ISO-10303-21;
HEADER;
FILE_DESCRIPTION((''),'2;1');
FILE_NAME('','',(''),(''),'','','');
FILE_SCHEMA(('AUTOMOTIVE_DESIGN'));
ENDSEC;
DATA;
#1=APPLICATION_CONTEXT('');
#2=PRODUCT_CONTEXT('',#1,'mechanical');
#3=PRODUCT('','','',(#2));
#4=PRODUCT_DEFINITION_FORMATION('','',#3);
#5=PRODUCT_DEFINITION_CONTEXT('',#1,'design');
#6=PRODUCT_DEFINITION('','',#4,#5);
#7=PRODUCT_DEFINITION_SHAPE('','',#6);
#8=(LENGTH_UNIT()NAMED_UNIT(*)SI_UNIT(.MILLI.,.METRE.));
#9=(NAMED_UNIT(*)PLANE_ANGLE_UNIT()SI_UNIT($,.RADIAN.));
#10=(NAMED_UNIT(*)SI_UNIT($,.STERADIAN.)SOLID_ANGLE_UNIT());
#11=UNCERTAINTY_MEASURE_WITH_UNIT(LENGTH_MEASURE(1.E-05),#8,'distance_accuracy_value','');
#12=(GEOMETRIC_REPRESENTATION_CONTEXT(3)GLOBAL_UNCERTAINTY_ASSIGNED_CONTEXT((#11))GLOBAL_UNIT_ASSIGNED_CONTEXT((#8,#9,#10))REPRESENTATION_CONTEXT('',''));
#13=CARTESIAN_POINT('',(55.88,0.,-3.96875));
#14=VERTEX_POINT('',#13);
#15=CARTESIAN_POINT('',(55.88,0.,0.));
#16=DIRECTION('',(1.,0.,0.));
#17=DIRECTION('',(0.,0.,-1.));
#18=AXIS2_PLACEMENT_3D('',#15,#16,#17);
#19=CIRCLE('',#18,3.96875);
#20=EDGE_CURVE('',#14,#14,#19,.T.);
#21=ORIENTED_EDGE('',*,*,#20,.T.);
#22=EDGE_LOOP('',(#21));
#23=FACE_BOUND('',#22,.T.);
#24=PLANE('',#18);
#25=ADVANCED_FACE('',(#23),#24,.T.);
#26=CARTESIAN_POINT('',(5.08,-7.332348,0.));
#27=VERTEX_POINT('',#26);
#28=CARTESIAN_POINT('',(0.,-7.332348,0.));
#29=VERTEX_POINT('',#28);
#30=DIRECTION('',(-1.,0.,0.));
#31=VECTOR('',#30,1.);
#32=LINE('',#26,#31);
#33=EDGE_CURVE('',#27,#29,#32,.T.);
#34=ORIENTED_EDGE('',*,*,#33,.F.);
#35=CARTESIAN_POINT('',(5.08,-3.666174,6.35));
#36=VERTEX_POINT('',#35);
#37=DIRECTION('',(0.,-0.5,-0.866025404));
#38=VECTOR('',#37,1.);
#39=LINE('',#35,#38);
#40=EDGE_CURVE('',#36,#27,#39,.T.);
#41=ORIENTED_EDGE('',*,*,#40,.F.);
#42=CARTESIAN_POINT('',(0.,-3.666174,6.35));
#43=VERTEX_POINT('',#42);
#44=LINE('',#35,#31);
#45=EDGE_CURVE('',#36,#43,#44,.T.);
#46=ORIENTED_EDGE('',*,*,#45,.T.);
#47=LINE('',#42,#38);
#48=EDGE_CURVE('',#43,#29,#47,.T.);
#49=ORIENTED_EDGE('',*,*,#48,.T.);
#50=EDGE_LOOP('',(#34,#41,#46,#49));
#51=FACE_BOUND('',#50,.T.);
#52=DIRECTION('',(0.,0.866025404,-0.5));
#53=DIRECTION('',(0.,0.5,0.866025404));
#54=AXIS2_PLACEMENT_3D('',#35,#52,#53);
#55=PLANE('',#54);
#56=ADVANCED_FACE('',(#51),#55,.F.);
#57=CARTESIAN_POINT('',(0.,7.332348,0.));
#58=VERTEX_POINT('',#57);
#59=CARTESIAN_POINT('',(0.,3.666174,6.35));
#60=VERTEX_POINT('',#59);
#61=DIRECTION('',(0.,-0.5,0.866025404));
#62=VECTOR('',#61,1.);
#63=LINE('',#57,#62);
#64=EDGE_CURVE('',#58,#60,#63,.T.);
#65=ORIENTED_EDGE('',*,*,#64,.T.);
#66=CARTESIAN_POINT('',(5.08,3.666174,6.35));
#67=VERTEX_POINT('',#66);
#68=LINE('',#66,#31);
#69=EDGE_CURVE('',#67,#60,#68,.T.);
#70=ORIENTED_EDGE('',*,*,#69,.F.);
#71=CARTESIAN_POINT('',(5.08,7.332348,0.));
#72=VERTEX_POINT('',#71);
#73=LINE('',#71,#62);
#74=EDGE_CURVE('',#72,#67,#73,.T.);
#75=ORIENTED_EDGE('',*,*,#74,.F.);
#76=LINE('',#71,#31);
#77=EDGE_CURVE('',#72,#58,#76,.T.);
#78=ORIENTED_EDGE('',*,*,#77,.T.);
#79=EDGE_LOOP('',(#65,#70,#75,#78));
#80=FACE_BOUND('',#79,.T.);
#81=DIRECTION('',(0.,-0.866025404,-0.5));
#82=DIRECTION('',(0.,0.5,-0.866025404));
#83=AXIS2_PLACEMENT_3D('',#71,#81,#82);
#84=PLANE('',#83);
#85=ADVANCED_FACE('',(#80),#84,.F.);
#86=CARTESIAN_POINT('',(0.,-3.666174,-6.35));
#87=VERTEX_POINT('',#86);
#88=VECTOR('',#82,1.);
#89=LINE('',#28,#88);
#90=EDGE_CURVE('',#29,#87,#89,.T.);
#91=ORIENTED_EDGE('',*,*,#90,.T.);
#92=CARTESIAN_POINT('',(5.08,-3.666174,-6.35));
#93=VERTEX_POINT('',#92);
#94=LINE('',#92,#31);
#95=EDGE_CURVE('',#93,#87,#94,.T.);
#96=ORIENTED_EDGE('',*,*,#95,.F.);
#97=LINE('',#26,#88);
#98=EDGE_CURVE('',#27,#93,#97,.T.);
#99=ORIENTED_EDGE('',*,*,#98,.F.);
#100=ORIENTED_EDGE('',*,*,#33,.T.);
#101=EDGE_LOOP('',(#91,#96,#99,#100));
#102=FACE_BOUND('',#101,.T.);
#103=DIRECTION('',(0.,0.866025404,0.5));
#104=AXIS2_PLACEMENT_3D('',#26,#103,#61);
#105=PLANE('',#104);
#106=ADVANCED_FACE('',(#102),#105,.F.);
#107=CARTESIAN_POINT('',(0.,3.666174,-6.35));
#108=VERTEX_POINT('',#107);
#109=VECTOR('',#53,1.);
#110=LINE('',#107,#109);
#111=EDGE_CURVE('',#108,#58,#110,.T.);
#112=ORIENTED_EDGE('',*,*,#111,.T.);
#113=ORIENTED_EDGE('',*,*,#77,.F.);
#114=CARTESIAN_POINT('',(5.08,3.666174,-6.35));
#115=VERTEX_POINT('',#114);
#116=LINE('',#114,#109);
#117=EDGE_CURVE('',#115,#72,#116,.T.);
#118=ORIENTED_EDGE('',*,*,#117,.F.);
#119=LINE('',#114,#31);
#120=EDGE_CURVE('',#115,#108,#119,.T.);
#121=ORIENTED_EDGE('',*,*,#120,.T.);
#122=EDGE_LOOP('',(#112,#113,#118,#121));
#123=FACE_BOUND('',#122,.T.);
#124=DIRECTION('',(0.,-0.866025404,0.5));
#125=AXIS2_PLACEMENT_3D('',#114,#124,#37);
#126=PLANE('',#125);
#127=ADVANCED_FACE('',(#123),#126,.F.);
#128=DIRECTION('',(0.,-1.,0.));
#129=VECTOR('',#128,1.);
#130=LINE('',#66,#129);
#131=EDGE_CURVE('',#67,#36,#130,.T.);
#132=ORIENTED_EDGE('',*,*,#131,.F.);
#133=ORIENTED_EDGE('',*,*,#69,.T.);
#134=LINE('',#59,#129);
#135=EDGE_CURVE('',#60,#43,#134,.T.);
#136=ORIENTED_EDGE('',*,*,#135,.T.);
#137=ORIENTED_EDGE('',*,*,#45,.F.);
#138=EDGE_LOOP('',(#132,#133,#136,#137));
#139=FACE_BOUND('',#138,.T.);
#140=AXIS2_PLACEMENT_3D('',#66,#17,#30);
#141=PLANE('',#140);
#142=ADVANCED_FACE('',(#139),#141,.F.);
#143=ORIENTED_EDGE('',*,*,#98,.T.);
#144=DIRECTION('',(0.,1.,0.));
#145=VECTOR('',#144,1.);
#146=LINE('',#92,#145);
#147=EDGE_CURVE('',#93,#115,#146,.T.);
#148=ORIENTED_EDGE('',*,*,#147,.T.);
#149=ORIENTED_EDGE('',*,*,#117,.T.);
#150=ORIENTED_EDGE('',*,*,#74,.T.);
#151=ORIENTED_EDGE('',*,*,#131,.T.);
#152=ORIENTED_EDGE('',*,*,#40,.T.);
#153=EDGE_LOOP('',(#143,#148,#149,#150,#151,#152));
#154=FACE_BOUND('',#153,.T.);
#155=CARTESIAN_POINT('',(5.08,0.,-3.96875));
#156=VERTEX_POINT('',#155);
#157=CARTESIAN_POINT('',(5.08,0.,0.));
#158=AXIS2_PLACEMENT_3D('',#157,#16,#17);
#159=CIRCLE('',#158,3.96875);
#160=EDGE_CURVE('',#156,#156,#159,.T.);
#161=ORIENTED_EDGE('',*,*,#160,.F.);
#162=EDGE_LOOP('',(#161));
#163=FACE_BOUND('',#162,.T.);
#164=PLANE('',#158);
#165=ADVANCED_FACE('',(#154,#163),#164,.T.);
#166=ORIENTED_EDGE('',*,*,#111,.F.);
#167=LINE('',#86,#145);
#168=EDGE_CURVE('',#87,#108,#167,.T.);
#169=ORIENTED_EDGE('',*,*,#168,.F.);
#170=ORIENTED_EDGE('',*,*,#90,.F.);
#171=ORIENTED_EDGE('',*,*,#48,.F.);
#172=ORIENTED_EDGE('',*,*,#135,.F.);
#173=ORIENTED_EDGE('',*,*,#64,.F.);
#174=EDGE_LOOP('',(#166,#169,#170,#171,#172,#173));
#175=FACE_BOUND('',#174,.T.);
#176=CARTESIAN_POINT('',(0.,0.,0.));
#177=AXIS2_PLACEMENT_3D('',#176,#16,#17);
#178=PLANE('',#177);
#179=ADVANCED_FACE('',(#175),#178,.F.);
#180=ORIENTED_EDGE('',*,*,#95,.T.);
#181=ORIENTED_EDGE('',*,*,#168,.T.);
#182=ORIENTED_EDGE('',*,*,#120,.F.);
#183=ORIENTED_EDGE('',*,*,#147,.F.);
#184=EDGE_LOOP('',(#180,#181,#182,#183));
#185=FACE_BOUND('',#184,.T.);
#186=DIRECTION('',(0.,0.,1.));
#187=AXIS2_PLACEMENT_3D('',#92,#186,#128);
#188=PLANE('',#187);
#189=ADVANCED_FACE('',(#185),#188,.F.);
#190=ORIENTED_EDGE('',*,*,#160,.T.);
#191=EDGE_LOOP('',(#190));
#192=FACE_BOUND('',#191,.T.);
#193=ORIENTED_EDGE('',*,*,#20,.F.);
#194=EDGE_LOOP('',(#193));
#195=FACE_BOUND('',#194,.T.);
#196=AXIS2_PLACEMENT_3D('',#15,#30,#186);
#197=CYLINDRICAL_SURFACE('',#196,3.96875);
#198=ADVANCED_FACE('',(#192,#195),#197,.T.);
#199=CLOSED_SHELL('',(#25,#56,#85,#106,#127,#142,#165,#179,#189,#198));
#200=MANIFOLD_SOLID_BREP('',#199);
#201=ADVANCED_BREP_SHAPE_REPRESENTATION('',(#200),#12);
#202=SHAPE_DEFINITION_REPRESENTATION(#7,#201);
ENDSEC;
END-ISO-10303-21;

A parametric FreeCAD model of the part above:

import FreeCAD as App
import Part
import Sketcher
Q = App.Units.Quantity

doc = App.newDocument("Part")
params = doc.addObject("Spreadsheet::Sheet", "Params")
for row, (alias, value) in enumerate([
    ("pad1_length", "0.2 in"),
    ("sketch2_diameter", "0.3125 in"),
    ("pad2_length", "2 in"),
], start=1):
    params.set(f"A{row}", alias)
    params.set(f"B{row}", "=" + value)
    params.setAlias(f"B{row}", alias)

body = doc.addObject("PartDesign::Body", "Body")

# Sketch on YZ plane
sketch1 = body.newObject("Sketcher::SketchObject", "Sketch")
sketch1.AttachmentSupport = (doc.getObject("YZ_Plane"), [""])
sketch1.MapMode = "FlatFace"
sketch1.addGeometry(Part.LineSegment(App.Vector(4, -6, 0), App.Vector(7, 0, 0)), False)
sketch1.addGeometry(Part.LineSegment(App.Vector(7, 0, 0), App.Vector(4, 6, 0)), False)
sketch1.addGeometry(Part.LineSegment(App.Vector(4, 6, 0), App.Vector(-4, 6, 0)), False)
sketch1.addGeometry(Part.LineSegment(App.Vector(-4, 6, 0), App.Vector(-7, 0, 0)), False)
sketch1.addGeometry(Part.LineSegment(App.Vector(-7, 0, 0), App.Vector(-4, -6, 0)), False)
sketch1.addGeometry(Part.LineSegment(App.Vector(-4, -6, 0), App.Vector(4, -6, 0)), False)
sketch1.addConstraint(Sketcher.Constraint("Coincident", 0, 2, 1, 1))
sketch1.addConstraint(Sketcher.Constraint("Coincident", 1, 2, 2, 1))
sketch1.addConstraint(Sketcher.Constraint("Coincident", 2, 2, 3, 1))
sketch1.addConstraint(Sketcher.Constraint("Coincident", 3, 2, 4, 1))
sketch1.addConstraint(Sketcher.Constraint("Coincident", 4, 2, 5, 1))
sketch1.addConstraint(Sketcher.Constraint("Coincident", 5, 2, 0, 1))
sketch1.addConstraint(Sketcher.Constraint("Horizontal", 2))
sketch1.addConstraint(Sketcher.Constraint("Horizontal", 5))
sketch1.addConstraint(Sketcher.Constraint("Symmetric", 0, 2, 3, 2, -1, 1))
sketch1.addConstraint(Sketcher.Constraint("Symmetric", 1, 2, 4, 2, -1, 1))
sketch1.addConstraint(Sketcher.Constraint("PointOnObject", 0, 2, -1))
sketch1.addConstraint(Sketcher.Constraint("Parallel", 0, 3))
sketch1.addConstraint(Sketcher.Constraint("Vertical", 2, 2, 4, 2))
sketch1.addConstraint(Sketcher.Constraint("Angle", 0, Q("60 deg")))
sketch1.addConstraint(Sketcher.Constraint("DistanceY", 4, 2, 2, 2, Q("0.5 in")))
sketch1.addConstraint(Sketcher.Constraint("DistanceX", 2, 2, 2, 1, 7.332348))
pad1 = body.newObject("PartDesign::Pad", "Pad")
pad1.Profile = sketch1
pad1.setExpression("Length", "Params.pad1_length")

# Sketch on YZ plane
sketch2 = body.newObject("Sketcher::SketchObject", "Sketch001")
sketch2.AttachmentSupport = (doc.getObject("YZ_Plane"), [""])
sketch2.MapMode = "FlatFace"
sketch2.AttachmentOffset = App.Placement(App.Vector(0, 0, 0.2 * 25.4), App.Rotation())
sketch2.addGeometry(Part.Circle(App.Vector(0, 0, 0), App.Vector(0, 0, 1), 4), False)
sketch2.addConstraint(Sketcher.Constraint("Coincident", 0, 3, -1, 1))
sketch2.addConstraint(Sketcher.Constraint("Diameter", 0, Q("0.3125 in")))
sketch2.setExpression("Constraints[1]", "Params.sketch2_diameter")
pad2 = body.newObject("PartDesign::Pad", "Pad001")
pad2.Profile = sketch2
pad2.setExpression("Length", "Params.pad2_length")

doc.recompute()
